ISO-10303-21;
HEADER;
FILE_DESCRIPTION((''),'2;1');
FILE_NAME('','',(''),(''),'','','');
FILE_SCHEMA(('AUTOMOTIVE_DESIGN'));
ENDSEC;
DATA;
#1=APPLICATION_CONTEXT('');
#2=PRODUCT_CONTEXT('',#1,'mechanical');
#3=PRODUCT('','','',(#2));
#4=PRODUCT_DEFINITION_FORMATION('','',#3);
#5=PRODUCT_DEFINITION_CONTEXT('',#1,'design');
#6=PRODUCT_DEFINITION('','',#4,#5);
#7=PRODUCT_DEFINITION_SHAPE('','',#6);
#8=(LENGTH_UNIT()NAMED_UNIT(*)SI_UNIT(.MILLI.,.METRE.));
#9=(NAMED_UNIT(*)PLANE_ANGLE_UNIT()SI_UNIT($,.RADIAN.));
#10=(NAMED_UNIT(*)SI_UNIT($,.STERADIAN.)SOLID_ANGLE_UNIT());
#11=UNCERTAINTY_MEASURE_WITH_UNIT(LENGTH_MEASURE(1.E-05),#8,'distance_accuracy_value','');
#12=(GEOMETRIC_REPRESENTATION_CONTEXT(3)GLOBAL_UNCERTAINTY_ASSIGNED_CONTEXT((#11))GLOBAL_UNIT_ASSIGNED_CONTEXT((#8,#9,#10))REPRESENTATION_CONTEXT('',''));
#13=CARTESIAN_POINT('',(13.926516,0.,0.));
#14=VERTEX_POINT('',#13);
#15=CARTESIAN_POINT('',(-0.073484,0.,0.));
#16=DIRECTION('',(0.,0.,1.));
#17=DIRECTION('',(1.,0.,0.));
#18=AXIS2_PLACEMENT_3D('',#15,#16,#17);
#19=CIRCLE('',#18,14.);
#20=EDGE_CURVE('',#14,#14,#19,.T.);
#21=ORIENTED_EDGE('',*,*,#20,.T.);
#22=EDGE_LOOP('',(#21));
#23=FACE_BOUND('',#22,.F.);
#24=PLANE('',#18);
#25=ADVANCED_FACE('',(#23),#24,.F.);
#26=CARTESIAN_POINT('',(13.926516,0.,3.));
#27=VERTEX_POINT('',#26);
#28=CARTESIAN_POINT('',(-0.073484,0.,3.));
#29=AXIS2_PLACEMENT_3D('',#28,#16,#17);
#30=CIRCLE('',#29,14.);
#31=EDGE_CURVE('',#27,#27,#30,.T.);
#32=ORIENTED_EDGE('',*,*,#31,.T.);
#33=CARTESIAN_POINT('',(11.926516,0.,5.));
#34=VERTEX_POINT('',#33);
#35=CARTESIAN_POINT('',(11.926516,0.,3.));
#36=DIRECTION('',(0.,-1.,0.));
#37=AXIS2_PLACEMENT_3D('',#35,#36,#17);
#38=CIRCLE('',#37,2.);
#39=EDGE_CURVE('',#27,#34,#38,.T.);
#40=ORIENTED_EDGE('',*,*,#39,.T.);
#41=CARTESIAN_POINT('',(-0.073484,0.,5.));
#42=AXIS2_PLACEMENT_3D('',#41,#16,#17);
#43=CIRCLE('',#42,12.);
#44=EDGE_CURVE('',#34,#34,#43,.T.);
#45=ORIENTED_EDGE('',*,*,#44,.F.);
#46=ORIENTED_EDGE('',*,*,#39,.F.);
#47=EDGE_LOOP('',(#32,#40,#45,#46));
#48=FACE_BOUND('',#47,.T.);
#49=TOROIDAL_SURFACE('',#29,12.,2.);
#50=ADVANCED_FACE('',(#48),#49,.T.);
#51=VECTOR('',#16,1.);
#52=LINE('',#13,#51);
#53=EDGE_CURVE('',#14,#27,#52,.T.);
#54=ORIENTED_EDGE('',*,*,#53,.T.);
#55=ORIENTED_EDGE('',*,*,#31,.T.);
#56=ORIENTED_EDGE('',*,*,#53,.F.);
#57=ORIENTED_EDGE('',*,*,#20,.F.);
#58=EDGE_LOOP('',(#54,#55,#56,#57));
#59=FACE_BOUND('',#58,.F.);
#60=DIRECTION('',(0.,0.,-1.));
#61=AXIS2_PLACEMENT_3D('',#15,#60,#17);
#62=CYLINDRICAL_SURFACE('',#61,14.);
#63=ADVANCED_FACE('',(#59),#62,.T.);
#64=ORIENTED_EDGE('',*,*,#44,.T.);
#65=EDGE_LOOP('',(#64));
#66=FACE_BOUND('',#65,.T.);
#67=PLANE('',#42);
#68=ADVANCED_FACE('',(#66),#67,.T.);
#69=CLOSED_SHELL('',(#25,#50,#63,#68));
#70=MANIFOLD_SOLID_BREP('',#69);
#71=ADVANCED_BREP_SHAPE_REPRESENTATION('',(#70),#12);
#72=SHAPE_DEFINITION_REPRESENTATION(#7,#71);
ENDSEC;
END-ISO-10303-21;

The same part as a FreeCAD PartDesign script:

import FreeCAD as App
import Part
import Sketcher
from FreeCAD import Vector


def edges_at(feature, points):
    """Names of the edges that pass closest to the given points."""
    edges = feature.Shape.Edges
    near = lambda p: min(range(len(edges)), key=lambda i: edges[i].distToShape(Part.Vertex(*p))[0])
    return sorted({f"Edge{near(p) + 1}" for p in points})

doc = App.newDocument("Part")
body = doc.addObject("PartDesign::Body", "Body")

# Sketch on XY plane
sketch1 = body.newObject("Sketcher::SketchObject", "Sketch")
sketch1.AttachmentSupport = (doc.getObject("XY_Plane"), [""])
sketch1.MapMode = "FlatFace"
sketch1.addGeometry(Part.Circle(Vector(0, 0, 0), Vector(0, 0, 1), 14), False)
sketch1.addConstraint([
    Sketcher.Constraint("PointOnObject", 0, 3, -1),
    Sketcher.Constraint("Diameter", 0, 28.0),
    Sketcher.Constraint("DistanceX", 0, 3, -1, 1, 0.073484),
])
pad1 = body.newObject("PartDesign::Pad", "Pad")
pad1.Profile = sketch1
pad1.Length = 5
doc.recompute()

fillet = body.newObject("PartDesign::Fillet", "Fillet")
fillet.Base = (pad1, edges_at(pad1, [(-14.073, 0, 5)]))
fillet.Radius = 2

doc.recompute()
